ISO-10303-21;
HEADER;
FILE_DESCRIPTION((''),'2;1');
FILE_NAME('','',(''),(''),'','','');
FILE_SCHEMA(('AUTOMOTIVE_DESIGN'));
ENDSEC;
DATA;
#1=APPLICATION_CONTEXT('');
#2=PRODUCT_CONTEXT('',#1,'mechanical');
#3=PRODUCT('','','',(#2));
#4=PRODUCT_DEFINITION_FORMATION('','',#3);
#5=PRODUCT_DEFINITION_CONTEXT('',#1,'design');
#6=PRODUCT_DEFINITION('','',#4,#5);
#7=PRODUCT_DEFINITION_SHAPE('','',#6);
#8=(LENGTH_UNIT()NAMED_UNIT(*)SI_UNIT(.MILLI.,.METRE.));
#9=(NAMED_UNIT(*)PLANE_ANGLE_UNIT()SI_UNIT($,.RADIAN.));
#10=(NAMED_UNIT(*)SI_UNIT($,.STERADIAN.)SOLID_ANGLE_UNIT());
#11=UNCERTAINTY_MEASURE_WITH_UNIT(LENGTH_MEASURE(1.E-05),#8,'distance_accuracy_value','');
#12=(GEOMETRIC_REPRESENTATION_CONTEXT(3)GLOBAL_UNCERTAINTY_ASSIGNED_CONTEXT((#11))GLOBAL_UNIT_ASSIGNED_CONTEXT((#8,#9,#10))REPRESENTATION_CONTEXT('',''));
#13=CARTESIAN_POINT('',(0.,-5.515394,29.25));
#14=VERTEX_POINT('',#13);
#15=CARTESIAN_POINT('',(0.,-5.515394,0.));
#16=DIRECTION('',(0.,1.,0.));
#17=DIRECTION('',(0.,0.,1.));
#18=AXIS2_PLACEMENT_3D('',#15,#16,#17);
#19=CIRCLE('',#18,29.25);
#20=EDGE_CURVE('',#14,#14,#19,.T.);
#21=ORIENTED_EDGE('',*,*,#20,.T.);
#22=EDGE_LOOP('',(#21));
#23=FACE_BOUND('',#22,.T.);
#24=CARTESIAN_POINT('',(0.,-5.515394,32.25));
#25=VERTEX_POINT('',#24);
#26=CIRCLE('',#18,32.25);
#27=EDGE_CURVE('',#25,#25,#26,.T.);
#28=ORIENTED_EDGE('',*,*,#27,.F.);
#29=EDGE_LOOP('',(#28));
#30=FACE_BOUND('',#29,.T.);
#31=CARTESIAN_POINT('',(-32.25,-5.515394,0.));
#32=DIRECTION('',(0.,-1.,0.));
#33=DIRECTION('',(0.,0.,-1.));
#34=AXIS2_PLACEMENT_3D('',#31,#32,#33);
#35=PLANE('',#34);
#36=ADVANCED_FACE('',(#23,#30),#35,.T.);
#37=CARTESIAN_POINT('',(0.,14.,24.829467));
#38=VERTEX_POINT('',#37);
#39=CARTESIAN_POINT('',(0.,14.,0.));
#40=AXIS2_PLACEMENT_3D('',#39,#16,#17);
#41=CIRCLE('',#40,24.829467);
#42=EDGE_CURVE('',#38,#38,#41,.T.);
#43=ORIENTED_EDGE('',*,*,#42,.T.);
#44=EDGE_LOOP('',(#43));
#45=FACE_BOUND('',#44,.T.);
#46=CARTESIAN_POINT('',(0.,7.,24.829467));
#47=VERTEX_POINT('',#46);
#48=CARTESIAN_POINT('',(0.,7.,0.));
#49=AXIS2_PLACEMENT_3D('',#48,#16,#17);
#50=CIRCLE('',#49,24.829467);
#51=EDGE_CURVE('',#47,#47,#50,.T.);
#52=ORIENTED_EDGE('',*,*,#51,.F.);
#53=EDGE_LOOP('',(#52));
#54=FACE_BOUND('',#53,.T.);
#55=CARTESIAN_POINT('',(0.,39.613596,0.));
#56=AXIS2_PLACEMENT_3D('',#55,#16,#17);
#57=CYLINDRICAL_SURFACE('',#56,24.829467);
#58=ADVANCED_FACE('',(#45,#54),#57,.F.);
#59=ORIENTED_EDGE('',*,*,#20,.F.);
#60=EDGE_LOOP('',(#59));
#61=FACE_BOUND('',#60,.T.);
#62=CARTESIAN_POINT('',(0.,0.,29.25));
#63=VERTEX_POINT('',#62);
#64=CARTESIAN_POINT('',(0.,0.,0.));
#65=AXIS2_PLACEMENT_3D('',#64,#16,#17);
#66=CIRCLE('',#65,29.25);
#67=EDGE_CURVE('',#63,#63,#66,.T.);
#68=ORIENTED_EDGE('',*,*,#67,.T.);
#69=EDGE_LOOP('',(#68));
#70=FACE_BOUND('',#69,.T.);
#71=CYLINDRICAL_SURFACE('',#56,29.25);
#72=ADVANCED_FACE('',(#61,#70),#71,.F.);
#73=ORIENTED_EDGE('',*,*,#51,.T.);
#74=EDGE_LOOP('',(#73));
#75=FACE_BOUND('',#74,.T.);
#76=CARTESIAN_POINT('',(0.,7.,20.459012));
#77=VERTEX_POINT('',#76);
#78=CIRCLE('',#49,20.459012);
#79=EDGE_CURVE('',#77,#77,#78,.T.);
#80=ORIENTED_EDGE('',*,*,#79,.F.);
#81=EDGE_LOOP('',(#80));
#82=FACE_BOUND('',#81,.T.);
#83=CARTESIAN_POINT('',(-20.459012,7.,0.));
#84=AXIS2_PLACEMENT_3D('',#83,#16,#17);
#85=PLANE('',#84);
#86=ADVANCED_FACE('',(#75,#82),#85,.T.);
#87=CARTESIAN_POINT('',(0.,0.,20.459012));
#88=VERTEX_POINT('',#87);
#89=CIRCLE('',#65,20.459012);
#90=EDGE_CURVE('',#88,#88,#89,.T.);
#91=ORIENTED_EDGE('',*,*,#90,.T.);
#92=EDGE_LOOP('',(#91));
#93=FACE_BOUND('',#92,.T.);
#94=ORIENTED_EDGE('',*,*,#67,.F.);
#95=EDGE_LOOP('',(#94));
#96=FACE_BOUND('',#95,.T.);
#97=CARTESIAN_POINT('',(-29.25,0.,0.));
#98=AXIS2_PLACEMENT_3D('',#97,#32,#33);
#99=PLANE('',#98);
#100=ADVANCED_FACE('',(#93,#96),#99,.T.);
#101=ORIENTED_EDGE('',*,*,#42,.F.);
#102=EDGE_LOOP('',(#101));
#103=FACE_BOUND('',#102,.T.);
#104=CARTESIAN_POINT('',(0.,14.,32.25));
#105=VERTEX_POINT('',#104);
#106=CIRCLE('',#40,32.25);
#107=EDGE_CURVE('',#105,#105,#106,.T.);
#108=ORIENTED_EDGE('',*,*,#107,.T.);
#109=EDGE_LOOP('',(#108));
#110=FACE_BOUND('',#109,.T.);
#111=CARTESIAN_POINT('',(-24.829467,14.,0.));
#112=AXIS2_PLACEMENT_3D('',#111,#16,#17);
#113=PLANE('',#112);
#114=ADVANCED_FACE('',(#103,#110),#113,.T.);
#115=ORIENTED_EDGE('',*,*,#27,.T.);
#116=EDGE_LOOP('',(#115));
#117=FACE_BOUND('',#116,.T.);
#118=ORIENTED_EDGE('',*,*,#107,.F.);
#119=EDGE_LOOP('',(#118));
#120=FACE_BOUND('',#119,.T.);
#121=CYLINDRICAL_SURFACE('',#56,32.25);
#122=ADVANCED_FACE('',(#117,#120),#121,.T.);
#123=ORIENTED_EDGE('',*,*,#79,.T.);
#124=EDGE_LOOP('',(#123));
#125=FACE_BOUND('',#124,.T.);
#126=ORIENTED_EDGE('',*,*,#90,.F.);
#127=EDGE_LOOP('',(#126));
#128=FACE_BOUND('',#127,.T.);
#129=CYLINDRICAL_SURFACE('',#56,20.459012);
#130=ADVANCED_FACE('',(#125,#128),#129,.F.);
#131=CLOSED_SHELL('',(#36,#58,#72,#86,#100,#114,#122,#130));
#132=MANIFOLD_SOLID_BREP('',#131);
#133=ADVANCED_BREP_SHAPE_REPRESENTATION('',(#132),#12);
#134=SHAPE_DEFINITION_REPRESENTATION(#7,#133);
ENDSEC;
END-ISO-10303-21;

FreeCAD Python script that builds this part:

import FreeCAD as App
import Part
import Sketcher
from FreeCAD import Vector

doc = App.newDocument("Part")
params = doc.addObject("Spreadsheet::Sheet", "Params")
for row, (alias, value) in enumerate([
    ("sketch1_width", "3 mm"),
    ("sketch1_height", "7 mm"),
    ("revolution_angle", "360 deg"),
], start=1):
    params.set(f"A{row}", alias)
    params.set(f"B{row}", "=" + value)
    params.setAlias(f"B{row}", alias)

body = doc.addObject("PartDesign::Body", "Body")

# Sketch on XY plane
sketch1 = doc.addObject("Sketcher::SketchObject", "Sketch")
body.addObject(sketch1)
sketch1.AttachmentSupport = (doc.XY_Plane, [""])
sketch1.MapMode = "FlatFace"
sketch1.addGeometry([
    Part.LineSegment(Vector(-20.459012, 0, 0), Vector(-20.459012, 7, 0)),  # 0
    Part.LineSegment(Vector(-20.459012, 7, 0), Vector(-24.829467, 7, 0)),  # 1
    Part.LineSegment(Vector(-24.829467, 7, 0), Vector(-24.829467, 14, 0)),  # 2
    Part.LineSegment(Vector(-24.829467, 14, 0), Vector(-32.25, 14, 0)),  # 3
    Part.LineSegment(Vector(-32.25, 14, 0), Vector(-32.25, -5.515394, 0)),  # 4
    Part.LineSegment(Vector(-32.25, -5.515394, 0), Vector(-29.25, -5.515394, 0)),  # 5
    Part.LineSegment(Vector(-29.25, -5.515394, 0), Vector(-29.25, 0, 0)),  # 6
    Part.LineSegment(Vector(-29.25, 0, 0), Vector(-20.459012, 0, 0)),  # 7
], False)
sketch1.addConstraint([
    Sketcher.Constraint("Coincident", 0, 2, 1, 1),
    Sketcher.Constraint("Coincident", 1, 2, 2, 1),
    Sketcher.Constraint("Coincident", 2, 2, 3, 1),
    Sketcher.Constraint("Coincident", 3, 2, 4, 1),
    Sketcher.Constraint("Coincident", 4, 2, 5, 1),
    Sketcher.Constraint("Coincident", 5, 2, 6, 1),
    Sketcher.Constraint("Coincident", 6, 2, 7, 1),
    Sketcher.Constraint("Coincident", 7, 2, 0, 1),
    Sketcher.Constraint("Vertical", 0),
    Sketcher.Constraint("Horizontal", 1),
    Sketcher.Constraint("Vertical", 2),
    Sketcher.Constraint("Horizontal", 3),
    Sketcher.Constraint("Vertical", 4),
    Sketcher.Constraint("Horizontal", 5),
    Sketcher.Constraint("Vertical", 6),
    Sketcher.Constraint("Horizontal", 7),
    Sketcher.Constraint("PointOnObject", 6, 2, -1),
    Sketcher.Constraint("Equal", 0, 2),
    Sketcher.Constraint("DistanceX", 5, 1, 5, 2, 3.0),
    Sketcher.Constraint("DistanceY", 0, 1, 0, 2, 7.0),
    Sketcher.Constraint("DistanceX", 3, 2, -1, 1, 32.25),
    Sketcher.Constraint("DistanceX", 7, 1, 7, 2, 8.790988),
    Sketcher.Constraint("DistanceX", 1, 2, 1, 1, 4.370455),
    Sketcher.Constraint("DistanceY", 4, 2, 4, 1, 19.515394),
])
sketch1.setExpression("Constraints[18]", "Params.sketch1_width")
sketch1.setExpression("Constraints[19]", "Params.sketch1_height")
revolution = doc.addObject("PartDesign::Revolution", "Revolution")
body.addObject(revolution)
revolution.Profile = sketch1
revolution.ReferenceAxis = (sketch1, ["V_Axis"])
revolution.setExpression("Angle", "Params.revolution_angle")

doc.recompute()
